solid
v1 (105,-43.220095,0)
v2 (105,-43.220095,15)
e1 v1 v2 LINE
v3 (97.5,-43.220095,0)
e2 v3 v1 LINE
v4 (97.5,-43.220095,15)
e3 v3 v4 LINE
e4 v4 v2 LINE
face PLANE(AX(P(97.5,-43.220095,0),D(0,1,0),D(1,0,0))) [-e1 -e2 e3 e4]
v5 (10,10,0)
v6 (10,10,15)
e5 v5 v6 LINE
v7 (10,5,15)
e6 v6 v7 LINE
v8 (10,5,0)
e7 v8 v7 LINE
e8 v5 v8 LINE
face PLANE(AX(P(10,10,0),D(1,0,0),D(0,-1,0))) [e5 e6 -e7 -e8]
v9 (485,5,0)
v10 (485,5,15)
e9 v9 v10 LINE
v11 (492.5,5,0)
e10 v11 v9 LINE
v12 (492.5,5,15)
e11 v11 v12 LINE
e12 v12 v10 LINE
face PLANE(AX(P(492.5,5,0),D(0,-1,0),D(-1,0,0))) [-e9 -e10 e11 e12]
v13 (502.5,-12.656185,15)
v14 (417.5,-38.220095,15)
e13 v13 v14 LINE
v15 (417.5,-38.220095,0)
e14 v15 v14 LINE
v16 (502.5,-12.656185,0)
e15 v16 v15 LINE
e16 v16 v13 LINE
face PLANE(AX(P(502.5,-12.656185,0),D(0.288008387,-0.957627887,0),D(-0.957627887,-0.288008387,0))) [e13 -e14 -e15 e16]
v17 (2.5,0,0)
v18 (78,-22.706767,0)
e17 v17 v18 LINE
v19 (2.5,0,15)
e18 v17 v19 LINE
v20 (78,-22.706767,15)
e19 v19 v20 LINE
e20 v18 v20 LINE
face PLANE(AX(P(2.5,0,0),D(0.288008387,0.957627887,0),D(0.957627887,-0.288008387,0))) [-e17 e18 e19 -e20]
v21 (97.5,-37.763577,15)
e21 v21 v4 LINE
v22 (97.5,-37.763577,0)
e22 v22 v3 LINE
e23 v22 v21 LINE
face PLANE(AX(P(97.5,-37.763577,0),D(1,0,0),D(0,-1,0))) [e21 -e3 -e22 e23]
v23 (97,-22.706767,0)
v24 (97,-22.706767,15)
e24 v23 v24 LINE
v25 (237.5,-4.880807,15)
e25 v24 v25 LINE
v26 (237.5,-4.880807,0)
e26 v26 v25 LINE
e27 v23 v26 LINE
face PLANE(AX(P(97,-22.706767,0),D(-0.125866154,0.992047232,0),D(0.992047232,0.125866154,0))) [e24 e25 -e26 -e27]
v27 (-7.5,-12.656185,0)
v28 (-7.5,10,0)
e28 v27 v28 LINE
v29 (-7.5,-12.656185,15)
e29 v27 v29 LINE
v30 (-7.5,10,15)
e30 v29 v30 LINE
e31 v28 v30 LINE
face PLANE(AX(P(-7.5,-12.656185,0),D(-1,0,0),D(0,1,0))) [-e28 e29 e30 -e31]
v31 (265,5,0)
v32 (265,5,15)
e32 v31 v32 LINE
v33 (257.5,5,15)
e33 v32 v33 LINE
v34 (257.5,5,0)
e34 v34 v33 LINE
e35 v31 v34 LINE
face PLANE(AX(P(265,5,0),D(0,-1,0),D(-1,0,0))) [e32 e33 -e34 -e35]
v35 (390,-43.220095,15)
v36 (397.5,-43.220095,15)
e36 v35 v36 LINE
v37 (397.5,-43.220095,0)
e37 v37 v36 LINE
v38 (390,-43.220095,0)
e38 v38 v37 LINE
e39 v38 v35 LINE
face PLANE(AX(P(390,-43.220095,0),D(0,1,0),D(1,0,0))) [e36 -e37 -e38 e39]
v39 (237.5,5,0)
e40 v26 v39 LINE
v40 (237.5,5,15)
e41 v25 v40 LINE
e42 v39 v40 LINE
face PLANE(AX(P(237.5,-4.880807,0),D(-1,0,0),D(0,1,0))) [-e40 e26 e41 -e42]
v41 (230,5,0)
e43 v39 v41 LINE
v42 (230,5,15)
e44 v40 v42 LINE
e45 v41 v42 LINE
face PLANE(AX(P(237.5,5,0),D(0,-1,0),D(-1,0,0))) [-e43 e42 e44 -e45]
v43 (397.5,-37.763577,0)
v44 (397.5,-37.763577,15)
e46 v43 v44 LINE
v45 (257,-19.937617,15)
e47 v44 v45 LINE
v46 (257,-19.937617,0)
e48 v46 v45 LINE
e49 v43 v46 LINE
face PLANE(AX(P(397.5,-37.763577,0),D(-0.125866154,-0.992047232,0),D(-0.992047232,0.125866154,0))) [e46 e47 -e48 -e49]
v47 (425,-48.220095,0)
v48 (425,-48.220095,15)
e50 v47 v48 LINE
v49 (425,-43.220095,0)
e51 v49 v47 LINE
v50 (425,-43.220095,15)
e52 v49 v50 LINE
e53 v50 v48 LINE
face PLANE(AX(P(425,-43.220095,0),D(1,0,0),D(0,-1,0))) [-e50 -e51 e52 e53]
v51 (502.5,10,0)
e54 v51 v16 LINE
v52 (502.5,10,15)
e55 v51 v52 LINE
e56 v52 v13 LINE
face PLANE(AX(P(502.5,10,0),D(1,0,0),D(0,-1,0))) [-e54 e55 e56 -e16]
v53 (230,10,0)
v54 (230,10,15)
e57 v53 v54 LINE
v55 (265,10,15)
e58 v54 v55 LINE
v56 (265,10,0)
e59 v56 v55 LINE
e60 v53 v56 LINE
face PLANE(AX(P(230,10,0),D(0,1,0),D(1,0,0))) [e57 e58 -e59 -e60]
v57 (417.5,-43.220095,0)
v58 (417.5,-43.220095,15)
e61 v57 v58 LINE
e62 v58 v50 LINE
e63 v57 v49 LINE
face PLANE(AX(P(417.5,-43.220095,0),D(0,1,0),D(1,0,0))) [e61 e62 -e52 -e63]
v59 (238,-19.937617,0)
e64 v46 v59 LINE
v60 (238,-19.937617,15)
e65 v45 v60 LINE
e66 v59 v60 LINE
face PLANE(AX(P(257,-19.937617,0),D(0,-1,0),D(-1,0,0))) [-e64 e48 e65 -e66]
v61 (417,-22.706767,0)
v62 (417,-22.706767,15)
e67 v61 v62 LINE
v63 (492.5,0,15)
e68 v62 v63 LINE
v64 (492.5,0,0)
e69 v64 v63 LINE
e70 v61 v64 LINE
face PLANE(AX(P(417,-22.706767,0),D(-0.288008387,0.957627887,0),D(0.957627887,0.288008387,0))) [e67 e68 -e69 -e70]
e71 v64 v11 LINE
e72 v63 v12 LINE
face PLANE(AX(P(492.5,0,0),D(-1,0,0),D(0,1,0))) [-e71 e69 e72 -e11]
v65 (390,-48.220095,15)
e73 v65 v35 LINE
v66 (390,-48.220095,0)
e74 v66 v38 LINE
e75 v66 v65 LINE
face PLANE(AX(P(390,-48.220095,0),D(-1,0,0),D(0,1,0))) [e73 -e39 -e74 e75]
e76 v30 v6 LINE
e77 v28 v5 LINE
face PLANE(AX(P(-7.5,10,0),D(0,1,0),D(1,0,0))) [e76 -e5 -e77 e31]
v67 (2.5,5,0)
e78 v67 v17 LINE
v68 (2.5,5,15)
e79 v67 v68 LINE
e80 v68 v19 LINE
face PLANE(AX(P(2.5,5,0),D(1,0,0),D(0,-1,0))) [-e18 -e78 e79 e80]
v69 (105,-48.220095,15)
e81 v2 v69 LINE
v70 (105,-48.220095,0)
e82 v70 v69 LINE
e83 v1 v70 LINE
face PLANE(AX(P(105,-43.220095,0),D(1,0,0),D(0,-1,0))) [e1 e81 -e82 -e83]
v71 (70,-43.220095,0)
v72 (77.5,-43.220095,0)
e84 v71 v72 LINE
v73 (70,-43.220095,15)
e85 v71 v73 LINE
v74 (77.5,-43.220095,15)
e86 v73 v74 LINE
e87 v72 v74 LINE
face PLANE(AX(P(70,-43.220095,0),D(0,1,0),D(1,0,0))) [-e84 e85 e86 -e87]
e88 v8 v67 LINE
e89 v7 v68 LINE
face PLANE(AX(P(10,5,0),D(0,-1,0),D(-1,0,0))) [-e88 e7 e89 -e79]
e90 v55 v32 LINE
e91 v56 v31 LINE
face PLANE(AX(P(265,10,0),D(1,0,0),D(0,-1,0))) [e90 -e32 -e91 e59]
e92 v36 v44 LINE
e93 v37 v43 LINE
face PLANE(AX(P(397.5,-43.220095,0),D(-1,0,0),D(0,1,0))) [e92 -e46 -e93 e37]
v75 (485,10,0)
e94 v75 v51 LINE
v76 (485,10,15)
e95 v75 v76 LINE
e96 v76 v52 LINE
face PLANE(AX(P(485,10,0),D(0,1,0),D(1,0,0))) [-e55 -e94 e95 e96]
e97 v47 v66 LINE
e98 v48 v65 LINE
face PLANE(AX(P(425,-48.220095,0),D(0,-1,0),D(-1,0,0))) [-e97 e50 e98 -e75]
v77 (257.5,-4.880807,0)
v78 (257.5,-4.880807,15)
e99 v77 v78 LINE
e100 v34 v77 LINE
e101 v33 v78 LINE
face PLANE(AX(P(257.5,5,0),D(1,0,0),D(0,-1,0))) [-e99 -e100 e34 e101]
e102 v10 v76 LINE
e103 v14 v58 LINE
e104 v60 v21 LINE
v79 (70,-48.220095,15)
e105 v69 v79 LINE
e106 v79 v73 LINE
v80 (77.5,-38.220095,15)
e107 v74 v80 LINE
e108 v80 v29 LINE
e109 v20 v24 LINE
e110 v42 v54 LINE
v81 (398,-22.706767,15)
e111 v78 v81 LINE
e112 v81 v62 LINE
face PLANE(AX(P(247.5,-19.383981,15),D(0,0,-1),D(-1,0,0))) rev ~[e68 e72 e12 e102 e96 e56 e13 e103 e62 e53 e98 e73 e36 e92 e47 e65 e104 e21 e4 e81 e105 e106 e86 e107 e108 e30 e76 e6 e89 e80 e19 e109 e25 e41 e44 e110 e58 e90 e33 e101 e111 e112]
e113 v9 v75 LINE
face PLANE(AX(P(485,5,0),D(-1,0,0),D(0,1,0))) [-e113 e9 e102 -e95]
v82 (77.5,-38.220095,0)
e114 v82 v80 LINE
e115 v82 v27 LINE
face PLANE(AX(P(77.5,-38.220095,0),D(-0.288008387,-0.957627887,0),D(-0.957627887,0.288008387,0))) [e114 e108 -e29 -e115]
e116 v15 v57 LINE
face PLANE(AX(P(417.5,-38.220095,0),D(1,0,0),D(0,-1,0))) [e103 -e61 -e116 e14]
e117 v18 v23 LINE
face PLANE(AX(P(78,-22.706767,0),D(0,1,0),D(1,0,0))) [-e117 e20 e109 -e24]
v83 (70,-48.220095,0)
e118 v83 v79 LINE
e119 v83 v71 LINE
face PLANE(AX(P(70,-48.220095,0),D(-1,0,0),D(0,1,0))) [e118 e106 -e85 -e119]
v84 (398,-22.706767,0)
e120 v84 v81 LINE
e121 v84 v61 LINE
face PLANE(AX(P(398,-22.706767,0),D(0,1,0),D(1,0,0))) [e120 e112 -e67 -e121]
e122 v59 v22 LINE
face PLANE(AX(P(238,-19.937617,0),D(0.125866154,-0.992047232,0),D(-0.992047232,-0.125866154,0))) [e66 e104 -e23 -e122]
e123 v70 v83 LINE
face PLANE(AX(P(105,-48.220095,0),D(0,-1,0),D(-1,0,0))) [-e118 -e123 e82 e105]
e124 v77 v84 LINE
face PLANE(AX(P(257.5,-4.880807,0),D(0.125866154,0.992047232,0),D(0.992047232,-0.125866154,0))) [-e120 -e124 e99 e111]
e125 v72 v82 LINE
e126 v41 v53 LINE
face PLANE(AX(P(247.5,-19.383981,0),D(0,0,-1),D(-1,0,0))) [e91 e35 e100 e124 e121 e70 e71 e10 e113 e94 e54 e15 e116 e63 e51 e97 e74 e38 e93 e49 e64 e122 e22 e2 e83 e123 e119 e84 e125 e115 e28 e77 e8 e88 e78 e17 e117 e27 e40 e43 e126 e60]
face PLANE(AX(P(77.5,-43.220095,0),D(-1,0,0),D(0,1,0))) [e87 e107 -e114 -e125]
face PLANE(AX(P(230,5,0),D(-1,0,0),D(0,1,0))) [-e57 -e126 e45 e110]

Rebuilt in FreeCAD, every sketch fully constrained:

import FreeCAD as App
import Part
import Sketcher
from FreeCAD import Vector

doc = App.newDocument("Part")
params = doc.addObject("Spreadsheet::Sheet", "Params")
for row, (alias, value) in enumerate([
    ("sketch1_width", "35 mm"),
    ("sketch1_width2", "19 mm"),
    ("sketch1_height", "5 mm"),
    ("sketch1_width3", "17.5 mm"),
    ("sketch1_width4", "7.5 mm"),
    ("pad1_length", "15 mm"),
], start=1):
    params.set(f"A{row}", alias)
    params.set(f"B{row}", "=" + value)
    params.setAlias(f"B{row}", alias)

body = doc.addObject("PartDesign::Body", "Body")

# Sketch on XY plane
sketch1 = doc.addObject("Sketcher::SketchObject", "Sketch")
body.addObject(sketch1)
sketch1.AttachmentSupport = (doc.XY_Plane, [""])
sketch1.MapMode = "FlatFace"
sketch1.addGeometry(Part.LineSegment(Vector(10, 10, 0), Vector(-7.5, 10, 0)), False)
sketch1.addGeometry(Part.LineSegment(Vector(-7.5, 10, 0), Vector(-7.5, -12.656185, 0)), False)
sketch1.addGeometry(Part.LineSegment(Vector(-7.5, -12.656185, 0), Vector(77.5, -38.220095, 0)), False)
sketch1.addGeometry(Part.LineSegment(Vector(77.5, -38.220095, 0), Vector(77.5, -43.220095, 0)), False)
sketch1.addGeometry(Part.LineSegment(Vector(77.5, -43.220095, 0), Vector(70, -43.220095, 0)), False)
sketch1.addGeometry(Part.LineSegment(Vector(70, -43.220095, 0), Vector(70, -48.220095, 0)), False)
sketch1.addGeometry(Part.LineSegment(Vector(70, -48.220095, 0), Vector(105, -48.220095, 0)), False)
sketch1.addGeometry(Part.LineSegment(Vector(105, -48.220095, 0), Vector(105, -43.220095, 0)), False)
sketch1.addGeometry(Part.LineSegment(Vector(105, -43.220095, 0), Vector(97.5, -43.220095, 0)), False)
sketch1.addGeometry(Part.LineSegment(Vector(97.5, -43.220095, 0), Vector(97.5, -37.763577, 0)), False)
sketch1.addGeometry(Part.LineSegment(Vector(97.5, -37.763577, 0), Vector(238, -19.937617, 0)), False)
sketch1.addGeometry(Part.LineSegment(Vector(238, -19.937617, 0), Vector(257, -19.937617, 0)), False)
sketch1.addGeometry(Part.LineSegment(Vector(257, -19.937617, 0), Vector(397.5, -37.763577, 0)), False)
sketch1.addGeometry(Part.LineSegment(Vector(397.5, -37.763577, 0), Vector(397.5, -43.220095, 0)), False)
sketch1.addGeometry(Part.LineSegment(Vector(397.5, -43.220095, 0), Vector(390, -43.220095, 0)), False)
sketch1.addGeometry(Part.LineSegment(Vector(390, -43.220095, 0), Vector(390, -48.220095, 0)), False)
sketch1.addGeometry(Part.LineSegment(Vector(390, -48.220095, 0), Vector(425, -48.220095, 0)), False)
sketch1.addGeometry(Part.LineSegment(Vector(425, -48.220095, 0), Vector(425, -43.220095, 0)), False)
sketch1.addGeometry(Part.LineSegment(Vector(425, -43.220095, 0), Vector(417.5, -43.220095, 0)), False)
sketch1.addGeometry(Part.LineSegment(Vector(417.5, -43.220095, 0), Vector(417.5, -38.220095, 0)), False)
sketch1.addGeometry(Part.LineSegment(Vector(417.5, -38.220095, 0), Vector(502.5, -12.656185, 0)), False)
sketch1.addGeometry(Part.LineSegment(Vector(502.5, -12.656185, 0), Vector(502.5, 10, 0)), False)
sketch1.addGeometry(Part.LineSegment(Vector(502.5, 10, 0), Vector(485, 10, 0)), False)
sketch1.addGeometry(Part.LineSegment(Vector(485, 10, 0), Vector(485, 5, 0)), False)
sketch1.addGeometry(Part.LineSegment(Vector(485, 5, 0), Vector(492.5, 5, 0)), False)
sketch1.addGeometry(Part.LineSegment(Vector(492.5, 5, 0), Vector(492.5, 0, 0)), False)
sketch1.addGeometry(Part.LineSegment(Vector(492.5, 0, 0), Vector(417, -22.706767, 0)), False)
sketch1.addGeometry(Part.LineSegment(Vector(417, -22.706767, 0), Vector(398, -22.706767, 0)), False)
sketch1.addGeometry(Part.LineSegment(Vector(398, -22.706767, 0), Vector(257.5, -4.880807, 0)), False)
sketch1.addGeometry(Part.LineSegment(Vector(257.5, -4.880807, 0), Vector(257.5, 5, 0)), False)
sketch1.addGeometry(Part.LineSegment(Vector(257.5, 5, 0), Vector(265, 5, 0)), False)
sketch1.addGeometry(Part.LineSegment(Vector(265, 5, 0), Vector(265, 10, 0)), False)
sketch1.addGeometry(Part.LineSegment(Vector(265, 10, 0), Vector(230, 10, 0)), False)
sketch1.addGeometry(Part.LineSegment(Vector(230, 10, 0), Vector(230, 5, 0)), False)
sketch1.addGeometry(Part.LineSegment(Vector(230, 5, 0), Vector(237.5, 5, 0)), False)
sketch1.addGeometry(Part.LineSegment(Vector(237.5, 5, 0), Vector(237.5, -4.880807, 0)), False)
sketch1.addGeometry(Part.LineSegment(Vector(237.5, -4.880807, 0), Vector(97, -22.706767, 0)), False)
sketch1.addGeometry(Part.LineSegment(Vector(97, -22.706767, 0), Vector(78, -22.706767, 0)), False)
sketch1.addGeometry(Part.LineSegment(Vector(78, -22.706767, 0), Vector(2.5, 0, 0)), False)
sketch1.addGeometry(Part.LineSegment(Vector(2.5, 0, 0), Vector(2.5, 5, 0)), False)
sketch1.addGeometry(Part.LineSegment(Vector(2.5, 5, 0), Vector(10, 5, 0)), False)
sketch1.addGeometry(Part.LineSegment(Vector(10, 5, 0), Vector(10, 10, 0)), False)
sketch1.addConstraint(Sketcher.Constraint("Coincident", 0, 2, 1, 1))
sketch1.addConstraint(Sketcher.Constraint("Coincident", 1, 2, 2, 1))
sketch1.addConstraint(Sketcher.Constraint("Coincident", 2, 2, 3, 1))
sketch1.addConstraint(Sketcher.Constraint("Coincident", 3, 2, 4, 1))
sketch1.addConstraint(Sketcher.Constraint("Coincident", 4, 2, 5, 1))
sketch1.addConstraint(Sketcher.Constraint("Coincident", 5, 2, 6, 1))
sketch1.addConstraint(Sketcher.Constraint("Coincident", 6, 2, 7, 1))
sketch1.addConstraint(Sketcher.Constraint("Coincident", 7, 2, 8, 1))
sketch1.addConstraint(Sketcher.Constraint("Coincident", 8, 2, 9, 1))
sketch1.addConstraint(Sketcher.Constraint("Coincident", 9, 2, 10, 1))
sketch1.addConstraint(Sketcher.Constraint("Coincident", 10, 2, 11, 1))
sketch1.addConstraint(Sketcher.Constraint("Coincident", 11, 2, 12, 1))
sketch1.addConstraint(Sketcher.Constraint("Coincident", 12, 2, 13, 1))
sketch1.addConstraint(Sketcher.Constraint("Coincident", 13, 2, 14, 1))
sketch1.addConstraint(Sketcher.Constraint("Coincident", 14, 2, 15, 1))
sketch1.addConstraint(Sketcher.Constraint("Coincident", 15, 2, 16, 1))
sketch1.addConstraint(Sketcher.Constraint("Coincident", 16, 2, 17, 1))
sketch1.addConstraint(Sketcher.Constraint("Coincident", 17, 2, 18, 1))
sketch1.addConstraint(Sketcher.Constraint("Coincident", 18, 2, 19, 1))
sketch1.addConstraint(Sketcher.Constraint("Coincident", 19, 2, 20, 1))
sketch1.addConstraint(Sketcher.Constraint("Coincident", 20, 2, 21, 1))
sketch1.addConstraint(Sketcher.Constraint("Coincident", 21, 2, 22, 1))
sketch1.addConstraint(Sketcher.Constraint("Coincident", 22, 2, 23, 1))
sketch1.addConstraint(Sketcher.Constraint("Coincident", 23, 2, 24, 1))
sketch1.addConstraint(Sketcher.Constraint("Coincident", 24, 2, 25, 1))
sketch1.addConstraint(Sketcher.Constraint("Coincident", 25, 2, 26, 1))
sketch1.addConstraint(Sketcher.Constraint("Coincident", 26, 2, 27, 1))
sketch1.addConstraint(Sketcher.Constraint("Coincident", 27, 2, 28, 1))
sketch1.addConstraint(Sketcher.Constraint("Coincident", 28, 2, 29, 1))
sketch1.addConstraint(Sketcher.Constraint("Coincident", 29, 2, 30, 1))
sketch1.addConstraint(Sketcher.Constraint("Coincident", 30, 2, 31, 1))
sketch1.addConstraint(Sketcher.Constraint("Coincident", 31, 2, 32, 1))
sketch1.addConstraint(Sketcher.Constraint("Coincident", 32, 2, 33, 1))
sketch1.addConstraint(Sketcher.Constraint("Coincident", 33, 2, 34, 1))
sketch1.addConstraint(Sketcher.Constraint("Coincident", 34, 2, 35, 1))
sketch1.addConstraint(Sketcher.Constraint("Coincident", 35, 2, 36, 1))
sketch1.addConstraint(Sketcher.Constraint("Coincident", 36, 2, 37, 1))
sketch1.addConstraint(Sketcher.Constraint("Coincident", 37, 2, 38, 1))
sketch1.addConstraint(Sketcher.Constraint("Coincident", 38, 2, 39, 1))
sketch1.addConstraint(Sketcher.Constraint("Coincident", 39, 2, 40, 1))
sketch1.addConstraint(Sketcher.Constraint("Coincident", 40, 2, 41, 1))
sketch1.addConstraint(Sketcher.Constraint("Coincident", 41, 2, 0, 1))
sketch1.addConstraint(Sketcher.Constraint("Horizontal", 0))
sketch1.addConstraint(Sketcher.Constraint("Vertical", 1))
sketch1.addConstraint(Sketcher.Constraint("Vertical", 3))
sketch1.addConstraint(Sketcher.Constraint("Horizontal", 4))
sketch1.addConstraint(Sketcher.Constraint("Vertical", 5))
sketch1.addConstraint(Sketcher.Constraint("Horizontal", 6))
sketch1.addConstraint(Sketcher.Constraint("Vertical", 7))
sketch1.addConstraint(Sketcher.Constraint("Horizontal", 8))
sketch1.addConstraint(Sketcher.Constraint("Vertical", 9))
sketch1.addConstraint(Sketcher.Constraint("Horizontal", 11))
sketch1.addConstraint(Sketcher.Constraint("Vertical", 13))
sketch1.addConstraint(Sketcher.Constraint("Horizontal", 14))
sketch1.addConstraint(Sketcher.Constraint("Vertical", 15))
sketch1.addConstraint(Sketcher.Constraint("Horizontal", 16))
sketch1.addConstraint(Sketcher.Constraint("Vertical", 17))
sketch1.addConstraint(Sketcher.Constraint("Horizontal", 18))
sketch1.addConstraint(Sketcher.Constraint("Vertical", 19))
sketch1.addConstraint(Sketcher.Constraint("Vertical", 21))
sketch1.addConstraint(Sketcher.Constraint("Horizontal", 22))
sketch1.addConstraint(Sketcher.Constraint("Vertical", 23))
sketch1.addConstraint(Sketcher.Constraint("Horizontal", 24))
sketch1.addConstraint(Sketcher.Constraint("Vertical", 25))
sketch1.addConstraint(Sketcher.Constraint("Horizontal", 27))
sketch1.addConstraint(Sketcher.Constraint("Vertical", 29))
sketch1.addConstraint(Sketcher.Constraint("Horizontal", 30))
sketch1.addConstraint(Sketcher.Constraint("Vertical", 31))
sketch1.addConstraint(Sketcher.Constraint("Horizontal", 32))
sketch1.addConstraint(Sketcher.Constraint("Vertical", 33))
sketch1.addConstraint(Sketcher.Constraint("Horizontal", 34))
sketch1.addConstraint(Sketcher.Constraint("Vertical", 35))
sketch1.addConstraint(Sketcher.Constraint("Horizontal", 37))
sketch1.addConstraint(Sketcher.Constraint("Vertical", 39))
sketch1.addConstraint(Sketcher.Constraint("Horizontal", 40))
sketch1.addConstraint(Sketcher.Constraint("Vertical", 41))
sketch1.addConstraint(Sketcher.Constraint("PointOnObject", 25, 2, -1))
sketch1.addConstraint(Sketcher.Constraint("PointOnObject", 38, 2, -1))
sketch1.addConstraint(Sketcher.Constraint("Parallel", 20, 26))
sketch1.addConstraint(Sketcher.Constraint("Parallel", 12, 28))
sketch1.addConstraint(Sketcher.Constraint("Parallel", 10, 36))
sketch1.addConstraint(Sketcher.Constraint("Parallel", 2, 38))
sketch1.addConstraint(Sketcher.Constraint("Horizontal", 4, 2, 7, 2))
sketch1.addConstraint(Sketcher.Constraint("Horizontal", 9, 2, 12, 2))
sketch1.addConstraint(Sketcher.Constraint("Horizontal", 8, 2, 13, 2))
sketch1.addConstraint(Sketcher.Constraint("Horizontal", 6, 2, 15, 2))
sketch1.addConstraint(Sketcher.Constraint("Horizontal", 14, 2, 17, 2))
sketch1.addConstraint(Sketcher.Constraint("Horizontal", 2, 2, 19, 2))
sketch1.addConstraint(Sketcher.Constraint("Horizontal", 1, 2, 20, 2))
sketch1.addConstraint(Sketcher.Constraint("Horizontal", 0, 2, 21, 2))
sketch1.addConstraint(Sketcher.Constraint("Horizontal", 24, 2, 29, 2))
sketch1.addConstraint(Sketcher.Constraint("Horizontal", 22, 2, 31, 2))
sketch1.addConstraint(Sketcher.Constraint("Horizontal", 30, 2, 33, 2))
sketch1.addConstraint(Sketcher.Constraint("Horizontal", 28, 2, 35, 2))
sketch1.addConstraint(Sketcher.Constraint("Horizontal", 27, 2, 36, 2))
sketch1.addConstraint(Sketcher.Constraint("Horizontal", 34, 2, 39, 2))
sketch1.addConstraint(Sketcher.Constraint("Equal", 4, 8))
sketch1.addConstraint(Sketcher.Constraint("Equal", 8, 14))
sketch1.addConstraint(Sketcher.Constraint("Equal", 6, 16))
sketch1.addConstraint(Sketcher.Constraint("Equal", 14, 18))
sketch1.addConstraint(Sketcher.Constraint("Equal", 0, 22))
sketch1.addConstraint(Sketcher.Constraint("Equal", 18, 24))
sketch1.addConstraint(Sketcher.Constraint("Equal", 11, 27))
sketch1.addConstraint(Sketcher.Constraint("Equal", 24, 30))
sketch1.addConstraint(Sketcher.Constraint("Equal", 16, 32))
sketch1.addConstraint(Sketcher.Constraint("Equal", 30, 34))
sketch1.addConstraint(Sketcher.Constraint("Equal", 27, 37))
sketch1.addConstraint(Sketcher.Constraint("Equal", 34, 40))
sketch1.addConstraint(Sketcher.Constraint("Equal", 3, 5))
sketch1.addConstraint(Sketcher.Constraint("Equal", 19, 23))
sketch1.addConstraint(Sketcher.Constraint("Equal", 23, 25))
sketch1.addConstraint(Sketcher.Constraint("Equal", 10, 12))
sketch1.addConstraint(Sketcher.Constraint("Equal", 2, 20))
sketch1.addConstraint(Sketcher.Constraint("Equal", 12, 28))
sketch1.addConstraint(Sketcher.Constraint("DistanceX", 6, 1, 6, 2, 35.0))
sketch1.addConstraint(Sketcher.Constraint("DistanceX", 11, 1, 11, 2, 19.0))
sketch1.addConstraint(Sketcher.Constraint("DistanceY", 3, 2, 3, 1, 5.0))
sketch1.addConstraint(Sketcher.Constraint("DistanceX", 0, 2, 0, 1, 17.5))
sketch1.addConstraint(Sketcher.Constraint("DistanceX", 4, 2, 4, 1, 7.5))
sketch1.addConstraint(Sketcher.Constraint("DistanceX", -1, 1, 4, 2, 70.0))
sketch1.addConstraint(Sketcher.Constraint("DistanceX", -1, 1, 10, 2, 238.0))
sketch1.addConstraint(Sketcher.Constraint("DistanceX", -1, 1, 22, 2, 485.0))
sketch1.addConstraint(Sketcher.Constraint("DistanceY", 9, 1, 9, 2, 5.456518))
sketch1.addConstraint(Sketcher.Constraint("Distance", 2, 88.760991))
sketch1.addConstraint(Sketcher.Constraint("Distance", 10, 141.626321))
sketch1.addConstraint(Sketcher.Constraint("DistanceY", 1, 2, 1, 1, 22.656185))
sketch1.setExpression("Constraints[114]", "Params.sketch1_width")
sketch1.setExpression("Constraints[115]", "Params.sketch1_width2")
sketch1.setExpression("Constraints[116]", "Params.sketch1_height")
sketch1.setExpression("Constraints[117]", "Params.sketch1_width3")
sketch1.setExpression("Constraints[118]", "Params.sketch1_width4")
pad1 = doc.addObject("PartDesign::Pad", "Pad")
body.addObject(pad1)
pad1.Profile = sketch1
pad1.setExpression("Length", "Params.pad1_length")

doc.recompute()
